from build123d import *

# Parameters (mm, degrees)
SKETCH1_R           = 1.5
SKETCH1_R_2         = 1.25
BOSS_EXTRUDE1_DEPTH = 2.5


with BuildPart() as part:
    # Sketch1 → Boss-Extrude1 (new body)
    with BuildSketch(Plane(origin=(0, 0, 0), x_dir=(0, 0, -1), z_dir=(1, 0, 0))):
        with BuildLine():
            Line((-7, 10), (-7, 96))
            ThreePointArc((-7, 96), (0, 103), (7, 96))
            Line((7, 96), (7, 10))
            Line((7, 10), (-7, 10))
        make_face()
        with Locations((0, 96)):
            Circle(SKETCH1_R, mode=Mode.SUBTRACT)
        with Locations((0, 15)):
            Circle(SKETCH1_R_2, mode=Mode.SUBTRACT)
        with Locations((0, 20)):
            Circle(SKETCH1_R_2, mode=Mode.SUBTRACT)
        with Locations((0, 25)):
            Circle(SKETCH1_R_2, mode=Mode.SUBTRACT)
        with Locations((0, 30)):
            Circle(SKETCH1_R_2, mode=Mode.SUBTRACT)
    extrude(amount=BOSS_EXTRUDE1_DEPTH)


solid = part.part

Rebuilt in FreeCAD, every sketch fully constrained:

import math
import FreeCAD as App
import Part
import Sketcher

doc = App.newDocument("Part")
body = doc.addObject("PartDesign::Body", "Body")

# Sketch on YZ plane
sketch1 = body.newObject("Sketcher::SketchObject", "Sketch")
sketch1.AttachmentSupport = (doc.getObject("YZ_Plane"), [""])
sketch1.MapMode = "FlatFace"
sketch1.addGeometry(Part.LineSegment(App.Vector(96, 7, 0), App.Vector(10, 7, 0)), False)
sketch1.addGeometry(Part.LineSegment(App.Vector(10, 7, 0), App.Vector(10, -7, 0)), False)
sketch1.addGeometry(Part.LineSegment(App.Vector(10, -7, 0), App.Vector(96, -7, 0)), False)
sketch1.addGeometry(Part.ArcOfCircle(Part.Circle(App.Vector(96, 0, 0), App.Vector(0, 0, 1), 7), math.radians(-90), math.radians(90)), False)
sketch1.addGeometry(Part.Circle(App.Vector(15, 0, 0), App.Vector(0, 0, 1), 1.2), False)
sketch1.addGeometry(Part.Circle(App.Vector(20, 0, 0), App.Vector(0, 0, 1), 1.2), False)
sketch1.addGeometry(Part.Circle(App.Vector(25, 0, 0), App.Vector(0, 0, 1), 1.2), False)
sketch1.addGeometry(Part.Circle(App.Vector(30, 0, 0), App.Vector(0, 0, 1), 1.2), False)
sketch1.addGeometry(Part.Circle(App.Vector(96, 0, 0), App.Vector(0, 0, 1), 1.5), False)
sketch1.addConstraint(Sketcher.Constraint("Coincident", 0, 2, 1, 1))
sketch1.addConstraint(Sketcher.Constraint("Coincident", 1, 2, 2, 1))
sketch1.addConstraint(Sketcher.Constraint("Tangent", 2, 2, 3, 1))
sketch1.addConstraint(Sketcher.Constraint("Tangent", 3, 2, 0, 1))
sketch1.addConstraint(Sketcher.Constraint("Horizontal", 0))
sketch1.addConstraint(Sketcher.Constraint("Vertical", 1))
sketch1.addConstraint(Sketcher.Constraint("Horizontal", 2))
sketch1.addConstraint(Sketcher.Constraint("Coincident", 8, 3, 3, 3))
sketch1.addConstraint(Sketcher.Constraint("Equal", 4, 5))
sketch1.addConstraint(Sketcher.Constraint("Equal", 5, 6))
sketch1.addConstraint(Sketcher.Constraint("Equal", 6, 7))
sketch1.addConstraint(Sketcher.Constraint("PointOnObject", 3, 3, -1))
sketch1.addConstraint(Sketcher.Constraint("PointOnObject", 4, 3, -1))
sketch1.addConstraint(Sketcher.Constraint("PointOnObject", 5, 3, -1))
sketch1.addConstraint(Sketcher.Constraint("PointOnObject", 6, 3, -1))
sketch1.addConstraint(Sketcher.Constraint("PointOnObject", 7, 3, -1))
sketch1.addConstraint(Sketcher.Constraint("Diameter", 8, 3.0))
sketch1.addConstraint(Sketcher.Constraint("Radius", 3, 7.0))
sketch1.addConstraint(Sketcher.Constraint("Diameter", 4, 2.5))
sketch1.addConstraint(Sketcher.Constraint("DistanceX", 0, 2, 0, 1, 86.0))
sketch1.addConstraint(Sketcher.Constraint("DistanceX", -1, 1, 3, 3, 96.0))
sketch1.addConstraint(Sketcher.Constraint("DistanceX", -1, 1, 4, 3, 15.0))
sketch1.addConstraint(Sketcher.Constraint("DistanceX", -1, 1, 5, 3, 20.0))
sketch1.addConstraint(Sketcher.Constraint("DistanceX", -1, 1, 6, 3, 25.0))
sketch1.addConstraint(Sketcher.Constraint("DistanceX", -1, 1, 7, 3, 30.0))
pad1 = body.newObject("PartDesign::Pad", "Pad")
pad1.Profile = sketch1
pad1.Length = 2.5

doc.recompute()
